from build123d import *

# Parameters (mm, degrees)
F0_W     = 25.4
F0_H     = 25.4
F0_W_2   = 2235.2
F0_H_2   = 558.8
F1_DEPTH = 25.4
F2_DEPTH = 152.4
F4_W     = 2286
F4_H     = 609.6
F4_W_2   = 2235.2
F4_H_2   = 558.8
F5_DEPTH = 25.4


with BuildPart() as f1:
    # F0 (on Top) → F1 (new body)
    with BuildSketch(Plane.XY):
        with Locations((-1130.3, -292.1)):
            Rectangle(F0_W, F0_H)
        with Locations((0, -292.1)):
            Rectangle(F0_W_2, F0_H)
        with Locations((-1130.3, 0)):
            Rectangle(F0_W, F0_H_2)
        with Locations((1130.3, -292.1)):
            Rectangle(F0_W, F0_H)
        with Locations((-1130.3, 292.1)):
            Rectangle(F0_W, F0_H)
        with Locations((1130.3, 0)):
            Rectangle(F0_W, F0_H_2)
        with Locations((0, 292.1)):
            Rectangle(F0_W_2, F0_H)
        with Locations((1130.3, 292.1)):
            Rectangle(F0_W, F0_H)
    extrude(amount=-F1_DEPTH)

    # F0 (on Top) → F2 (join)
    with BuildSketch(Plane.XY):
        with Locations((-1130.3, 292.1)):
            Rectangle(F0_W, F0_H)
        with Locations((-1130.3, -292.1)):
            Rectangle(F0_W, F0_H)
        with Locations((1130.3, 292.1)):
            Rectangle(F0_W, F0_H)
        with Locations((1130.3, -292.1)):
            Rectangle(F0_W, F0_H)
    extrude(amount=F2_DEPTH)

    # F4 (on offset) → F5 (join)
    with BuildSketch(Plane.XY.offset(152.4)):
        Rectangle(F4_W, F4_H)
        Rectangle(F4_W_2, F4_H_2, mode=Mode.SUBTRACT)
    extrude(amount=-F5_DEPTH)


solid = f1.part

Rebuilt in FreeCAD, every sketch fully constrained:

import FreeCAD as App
import Part
import Sketcher
from FreeCAD import Vector
Q = App.Units.Quantity


def add_polygon(sketch, points):
    """Adds a closed chain of lines whose ends are joined by coincident constraints."""
    first, n = sketch.GeometryCount, len(points)
    for a, b in zip(points, points[1:] + points[:1]):
        sketch.addGeometry(Part.LineSegment(App.Vector(*a, 0), App.Vector(*b, 0)), False)
    for i in range(n):
        sketch.addConstraint(Sketcher.Constraint("Coincident", first + i, 2, first + (i + 1) % n, 1))

doc = App.newDocument("Part")
body = doc.addObject("PartDesign::Body", "Body")

sketch1 = body.newObject("Sketcher::SketchObject", "Sketch")
sketch1.AttachmentSupport = (doc.getObject("XY_Plane"), [""])
sketch1.MapMode = "FlatFace"
add_polygon(sketch1, [(1143, -305), (1143, 305), (-1143, 305), (-1143, -305)])
add_polygon(sketch1, [(1118, 279), (1118, -279), (-1118, -279), (-1118, 279)])
sketch1.addConstraint(Sketcher.Constraint("Vertical", 0))
sketch1.addConstraint(Sketcher.Constraint("Horizontal", 1))
sketch1.addConstraint(Sketcher.Constraint("Vertical", 2))
sketch1.addConstraint(Sketcher.Constraint("Horizontal", 3))
sketch1.addConstraint(Sketcher.Constraint("Vertical", 4))
sketch1.addConstraint(Sketcher.Constraint("Horizontal", 5))
sketch1.addConstraint(Sketcher.Constraint("Vertical", 6))
sketch1.addConstraint(Sketcher.Constraint("Horizontal", 7))
sketch1.addConstraint(Sketcher.Constraint("Symmetric", 0, 2, 2, 2, -1, 1))
sketch1.addConstraint(Sketcher.Constraint("Symmetric", 4, 2, 6, 2, -1, 1))
sketch1.addConstraint(Sketcher.Constraint("DistanceX", 1, 2, 1, 1, Q("90 in")))
sketch1.addConstraint(Sketcher.Constraint("DistanceX", 5, 2, 5, 1, Q("88 in")))
sketch1.addConstraint(Sketcher.Constraint("DistanceY", 0, 1, 0, 2, Q("24 in")))
sketch1.addConstraint(Sketcher.Constraint("DistanceY", 4, 2, 4, 1, Q("22 in")))
pad1 = body.newObject("PartDesign::Pad", "Pad")
pad1.Profile = sketch1
pad1.Length = Q("1 in")
pad1.Reversed = True

sketch2 = body.newObject("Sketcher::SketchObject", "Sketch001")
sketch2.AttachmentSupport = (doc.getObject("XY_Plane"), [""])
sketch2.MapMode = "FlatFace"
add_polygon(sketch2, [(-1143, 305), (-1143, 279), (-1118, 279), (-1118, 305)])
add_polygon(sketch2, [(-1143, -279), (-1143, -305), (-1118, -305), (-1118, -279)])
add_polygon(sketch2, [(1118, 305), (1118, 279), (1143, 279), (1143, 305)])
add_polygon(sketch2, [(1118, -279), (1118, -305), (1143, -305), (1143, -279)])
sketch2.addConstraint(Sketcher.Constraint("Vertical", 0))
sketch2.addConstraint(Sketcher.Constraint("Horizontal", 1))
sketch2.addConstraint(Sketcher.Constraint("Vertical", 2))
sketch2.addConstraint(Sketcher.Constraint("Horizontal", 3))
sketch2.addConstraint(Sketcher.Constraint("Vertical", 4))
sketch2.addConstraint(Sketcher.Constraint("Horizontal", 5))
sketch2.addConstraint(Sketcher.Constraint("Vertical", 6))
sketch2.addConstraint(Sketcher.Constraint("Horizontal", 7))
sketch2.addConstraint(Sketcher.Constraint("Vertical", 8))
sketch2.addConstraint(Sketcher.Constraint("Horizontal", 9))
sketch2.addConstraint(Sketcher.Constraint("Vertical", 10))
sketch2.addConstraint(Sketcher.Constraint("Horizontal", 11))
sketch2.addConstraint(Sketcher.Constraint("Vertical", 12))
sketch2.addConstraint(Sketcher.Constraint("Horizontal", 13))
sketch2.addConstraint(Sketcher.Constraint("Vertical", 14))
sketch2.addConstraint(Sketcher.Constraint("Horizontal", 15))
sketch2.addConstraint(Sketcher.Constraint("Symmetric", 6, 2, 8, 2, -1, 1))
sketch2.addConstraint(Sketcher.Constraint("Symmetric", 4, 2, 10, 2, -1, 1))
sketch2.addConstraint(Sketcher.Constraint("Symmetric", 2, 2, 12, 2, -1, 1))
sketch2.addConstraint(Sketcher.Constraint("Symmetric", 0, 2, 14, 2, -1, 1))
sketch2.addConstraint(Sketcher.Constraint("Symmetric", 1, 2, 8, 2, -2))
sketch2.addConstraint(Sketcher.Constraint("Symmetric", 3, 2, 10, 2, -2))
sketch2.addConstraint(Sketcher.Constraint("Equal", 15, 0))
sketch2.addConstraint(Sketcher.Constraint("DistanceX", 1, 1, 1, 2, Q("1 in")))
sketch2.addConstraint(Sketcher.Constraint("DistanceX", 0, 2, -1, 1, Q("45 in")))
sketch2.addConstraint(Sketcher.Constraint("DistanceY", -1, 1, 0, 2, Q("11 in")))
pad2 = body.newObject("PartDesign::Pad", "Pad001")
pad2.Profile = sketch2
pad2.Length = Q("6 in")

sketch3 = body.newObject("Sketcher::SketchObject", "Sketch002")
sketch3.AttachmentSupport = (doc.getObject("XY_Plane"), [""])
sketch3.MapMode = "FlatFace"
sketch3.AttachmentOffset = App.Placement(Vector(0, 0, 6 * 25.4), App.Rotation())
add_polygon(sketch3, [(-1143, 305), (-1143, -305), (1143, -305), (1143, 305)])
add_polygon(sketch3, [(1118, -279), (-1118, -279), (-1118, 279), (1118, 279)])
sketch3.addConstraint(Sketcher.Constraint("Vertical", 0))
sketch3.addConstraint(Sketcher.Constraint("Horizontal", 1))
sketch3.addConstraint(Sketcher.Constraint("Vertical", 2))
sketch3.addConstraint(Sketcher.Constraint("Horizontal", 3))
sketch3.addConstraint(Sketcher.Constraint("Horizontal", 4))
sketch3.addConstraint(Sketcher.Constraint("Vertical", 5))
sketch3.addConstraint(Sketcher.Constraint("Horizontal", 6))
sketch3.addConstraint(Sketcher.Constraint("Vertical", 7))
sketch3.addConstraint(Sketcher.Constraint("Symmetric", 0, 2, 2, 2, -1, 1))
sketch3.addConstraint(Sketcher.Constraint("Symmetric", 4, 2, 6, 2, -1, 1))
sketch3.addConstraint(Sketcher.Constraint("DistanceX", 1, 1, 1, 2, Q("90 in")))
sketch3.addConstraint(Sketcher.Constraint("DistanceX", 4, 2, 4, 1, Q("88 in")))
sketch3.addConstraint(Sketcher.Constraint("DistanceY", 0, 2, 0, 1, Q("24 in")))
sketch3.addConstraint(Sketcher.Constraint("DistanceY", 5, 1, 5, 2, Q("22 in")))
pad3 = body.newObject("PartDesign::Pad", "Pad002")
pad3.Profile = sketch3
pad3.Length = Q("1 in")
pad3.Reversed = True

doc.recompute()
